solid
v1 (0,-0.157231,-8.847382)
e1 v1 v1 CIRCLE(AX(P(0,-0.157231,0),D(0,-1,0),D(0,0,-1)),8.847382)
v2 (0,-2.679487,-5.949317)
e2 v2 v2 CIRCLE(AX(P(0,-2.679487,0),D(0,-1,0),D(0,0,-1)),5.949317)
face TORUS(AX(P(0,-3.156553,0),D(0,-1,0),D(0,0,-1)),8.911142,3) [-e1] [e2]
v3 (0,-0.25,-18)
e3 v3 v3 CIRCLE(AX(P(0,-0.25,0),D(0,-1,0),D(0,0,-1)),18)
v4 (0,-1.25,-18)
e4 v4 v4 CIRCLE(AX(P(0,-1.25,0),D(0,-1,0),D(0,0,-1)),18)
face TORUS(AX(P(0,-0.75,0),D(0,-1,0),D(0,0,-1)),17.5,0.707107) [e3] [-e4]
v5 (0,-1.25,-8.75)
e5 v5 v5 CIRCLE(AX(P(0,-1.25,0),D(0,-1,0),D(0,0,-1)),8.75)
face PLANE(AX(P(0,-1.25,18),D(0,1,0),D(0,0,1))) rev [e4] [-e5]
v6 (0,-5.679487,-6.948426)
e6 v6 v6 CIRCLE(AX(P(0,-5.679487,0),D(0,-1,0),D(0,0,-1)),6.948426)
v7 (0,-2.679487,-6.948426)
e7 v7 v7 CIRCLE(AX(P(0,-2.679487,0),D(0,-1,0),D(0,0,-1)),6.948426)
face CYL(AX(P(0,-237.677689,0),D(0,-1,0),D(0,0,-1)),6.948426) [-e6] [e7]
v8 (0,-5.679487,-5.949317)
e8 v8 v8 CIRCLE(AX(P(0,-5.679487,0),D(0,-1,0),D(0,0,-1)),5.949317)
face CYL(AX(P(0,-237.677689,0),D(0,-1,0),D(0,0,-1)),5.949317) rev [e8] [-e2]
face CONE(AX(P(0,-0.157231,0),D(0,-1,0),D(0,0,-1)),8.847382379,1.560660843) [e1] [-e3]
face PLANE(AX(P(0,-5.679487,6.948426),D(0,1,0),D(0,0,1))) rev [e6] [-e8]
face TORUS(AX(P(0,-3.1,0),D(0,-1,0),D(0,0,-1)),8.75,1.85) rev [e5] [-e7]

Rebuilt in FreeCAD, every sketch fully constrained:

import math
import FreeCAD as App
import Part
import Sketcher

V = App.Vector
Q = App.Units.Quantity

doc = App.newDocument("Part")
body = doc.addObject("PartDesign::Body", "Body")

sketch1 = body.newObject("Sketcher::SketchObject", "Sketch")
sketch1.AttachmentSupport = (doc.getObject("YZ_Plane"), [""])
sketch1.MapMode = "FlatFace"
sketch1.addGeometry(Part.LineSegment(V(-1.2, 18, 0), V(-1.2, 8.8, 0)), False)
sketch1.addGeometry(Part.ArcOfCircle(Part.Circle(V(-3.1, 8.8, 0), V(0, 0, 1), 1.9), math.radians(-77), math.radians(0)), False)
sketch1.addGeometry(Part.LineSegment(V(-2.7, 6.9, 0), V(-5.7, 6.9, 0)), False)
sketch1.addGeometry(Part.LineSegment(V(-5.7, 6.9, 0), V(-5.7, 5.9, 0)), False)
sketch1.addGeometry(Part.LineSegment(V(-5.7, 5.9, 0), V(-2.7, 5.9, 0)), False)
sketch1.addGeometry(Part.ArcOfCircle(Part.Circle(V(-3.2, 8.9, 0), V(0, 0, 1), 3), math.radians(-81), math.radians(-1)), False)
sketch1.addGeometry(Part.LineSegment(V(-0.2, 8.8, 0), V(-0.2, 18, 0)), False)
sketch1.addGeometry(Part.ArcOfCircle(Part.Circle(V(-0.8, 17.5, 0), V(0, 0, 1), 0.7), math.radians(45), math.radians(135)), False)
sketch1.addConstraint(Sketcher.Constraint("Tangent", 0, 2, 1, 2))
sketch1.addConstraint(Sketcher.Constraint("Coincident", 1, 1, 2, 1))
sketch1.addConstraint(Sketcher.Constraint("Coincident", 2, 2, 3, 1))
sketch1.addConstraint(Sketcher.Constraint("Coincident", 3, 2, 4, 1))
sketch1.addConstraint(Sketcher.Constraint("Coincident", 4, 2, 5, 1))
sketch1.addConstraint(Sketcher.Constraint("Coincident", 5, 2, 6, 1))
sketch1.addConstraint(Sketcher.Constraint("Coincident", 6, 2, 7, 1))
sketch1.addConstraint(Sketcher.Constraint("Coincident", 7, 2, 0, 1))
sketch1.addConstraint(Sketcher.Constraint("Vertical", 0))
sketch1.addConstraint(Sketcher.Constraint("Horizontal", 2))
sketch1.addConstraint(Sketcher.Constraint("Vertical", 3))
sketch1.addConstraint(Sketcher.Constraint("Horizontal", 4))
sketch1.addConstraint(Sketcher.Constraint("Horizontal", 6, 2, 7, 2))
sketch1.addConstraint(Sketcher.Constraint("Vertical", 1, 1, 4, 2))
sketch1.addConstraint(Sketcher.Constraint("Radius", 5, Q("3 mm")))
sketch1.addConstraint(Sketcher.Constraint("DistanceX", 2, 2, 2, 1, Q("3 mm")))
sketch1.addConstraint(Sketcher.Constraint("Radius", 1, Q("1.85 mm")))
sketch1.addConstraint(Sketcher.Constraint("DistanceY", -1, 1, 6, 2, Q("18 mm")))
sketch1.addConstraint(Sketcher.Constraint("DistanceX", 0, 2, 6, 2, Q("1 mm")))
sketch1.addConstraint(Sketcher.Constraint("DistanceY", 0, 2, 0, 1, Q("9.25 mm")))
sketch1.addConstraint(Sketcher.Constraint("DistanceX", 1, 3, -1, 1, Q("3.1 mm")))
sketch1.addConstraint(Sketcher.Constraint("DistanceY", -1, 1, 7, 3, Q("17.5 mm")))
sketch1.addConstraint(Sketcher.Constraint("DistanceY", 3, 2, 3, 1, Q("0.999109 mm")))
sketch1.addConstraint(Sketcher.Constraint("DistanceX", 5, 2, -1, 1, Q("0.157231 mm")))
sketch1.addConstraint(Sketcher.Constraint("DistanceY", 5, 2, 5, 3, Q("0.06376 mm")))
sketch1.addConstraint(Sketcher.Constraint("Distance", 6, Q("9.153088 mm")))
revolution = body.newObject("PartDesign::Revolution", "Revolution")
revolution.Profile = sketch1
revolution.ReferenceAxis = (sketch1, ["H_Axis"])
revolution.Angle = 360

doc.recompute()
